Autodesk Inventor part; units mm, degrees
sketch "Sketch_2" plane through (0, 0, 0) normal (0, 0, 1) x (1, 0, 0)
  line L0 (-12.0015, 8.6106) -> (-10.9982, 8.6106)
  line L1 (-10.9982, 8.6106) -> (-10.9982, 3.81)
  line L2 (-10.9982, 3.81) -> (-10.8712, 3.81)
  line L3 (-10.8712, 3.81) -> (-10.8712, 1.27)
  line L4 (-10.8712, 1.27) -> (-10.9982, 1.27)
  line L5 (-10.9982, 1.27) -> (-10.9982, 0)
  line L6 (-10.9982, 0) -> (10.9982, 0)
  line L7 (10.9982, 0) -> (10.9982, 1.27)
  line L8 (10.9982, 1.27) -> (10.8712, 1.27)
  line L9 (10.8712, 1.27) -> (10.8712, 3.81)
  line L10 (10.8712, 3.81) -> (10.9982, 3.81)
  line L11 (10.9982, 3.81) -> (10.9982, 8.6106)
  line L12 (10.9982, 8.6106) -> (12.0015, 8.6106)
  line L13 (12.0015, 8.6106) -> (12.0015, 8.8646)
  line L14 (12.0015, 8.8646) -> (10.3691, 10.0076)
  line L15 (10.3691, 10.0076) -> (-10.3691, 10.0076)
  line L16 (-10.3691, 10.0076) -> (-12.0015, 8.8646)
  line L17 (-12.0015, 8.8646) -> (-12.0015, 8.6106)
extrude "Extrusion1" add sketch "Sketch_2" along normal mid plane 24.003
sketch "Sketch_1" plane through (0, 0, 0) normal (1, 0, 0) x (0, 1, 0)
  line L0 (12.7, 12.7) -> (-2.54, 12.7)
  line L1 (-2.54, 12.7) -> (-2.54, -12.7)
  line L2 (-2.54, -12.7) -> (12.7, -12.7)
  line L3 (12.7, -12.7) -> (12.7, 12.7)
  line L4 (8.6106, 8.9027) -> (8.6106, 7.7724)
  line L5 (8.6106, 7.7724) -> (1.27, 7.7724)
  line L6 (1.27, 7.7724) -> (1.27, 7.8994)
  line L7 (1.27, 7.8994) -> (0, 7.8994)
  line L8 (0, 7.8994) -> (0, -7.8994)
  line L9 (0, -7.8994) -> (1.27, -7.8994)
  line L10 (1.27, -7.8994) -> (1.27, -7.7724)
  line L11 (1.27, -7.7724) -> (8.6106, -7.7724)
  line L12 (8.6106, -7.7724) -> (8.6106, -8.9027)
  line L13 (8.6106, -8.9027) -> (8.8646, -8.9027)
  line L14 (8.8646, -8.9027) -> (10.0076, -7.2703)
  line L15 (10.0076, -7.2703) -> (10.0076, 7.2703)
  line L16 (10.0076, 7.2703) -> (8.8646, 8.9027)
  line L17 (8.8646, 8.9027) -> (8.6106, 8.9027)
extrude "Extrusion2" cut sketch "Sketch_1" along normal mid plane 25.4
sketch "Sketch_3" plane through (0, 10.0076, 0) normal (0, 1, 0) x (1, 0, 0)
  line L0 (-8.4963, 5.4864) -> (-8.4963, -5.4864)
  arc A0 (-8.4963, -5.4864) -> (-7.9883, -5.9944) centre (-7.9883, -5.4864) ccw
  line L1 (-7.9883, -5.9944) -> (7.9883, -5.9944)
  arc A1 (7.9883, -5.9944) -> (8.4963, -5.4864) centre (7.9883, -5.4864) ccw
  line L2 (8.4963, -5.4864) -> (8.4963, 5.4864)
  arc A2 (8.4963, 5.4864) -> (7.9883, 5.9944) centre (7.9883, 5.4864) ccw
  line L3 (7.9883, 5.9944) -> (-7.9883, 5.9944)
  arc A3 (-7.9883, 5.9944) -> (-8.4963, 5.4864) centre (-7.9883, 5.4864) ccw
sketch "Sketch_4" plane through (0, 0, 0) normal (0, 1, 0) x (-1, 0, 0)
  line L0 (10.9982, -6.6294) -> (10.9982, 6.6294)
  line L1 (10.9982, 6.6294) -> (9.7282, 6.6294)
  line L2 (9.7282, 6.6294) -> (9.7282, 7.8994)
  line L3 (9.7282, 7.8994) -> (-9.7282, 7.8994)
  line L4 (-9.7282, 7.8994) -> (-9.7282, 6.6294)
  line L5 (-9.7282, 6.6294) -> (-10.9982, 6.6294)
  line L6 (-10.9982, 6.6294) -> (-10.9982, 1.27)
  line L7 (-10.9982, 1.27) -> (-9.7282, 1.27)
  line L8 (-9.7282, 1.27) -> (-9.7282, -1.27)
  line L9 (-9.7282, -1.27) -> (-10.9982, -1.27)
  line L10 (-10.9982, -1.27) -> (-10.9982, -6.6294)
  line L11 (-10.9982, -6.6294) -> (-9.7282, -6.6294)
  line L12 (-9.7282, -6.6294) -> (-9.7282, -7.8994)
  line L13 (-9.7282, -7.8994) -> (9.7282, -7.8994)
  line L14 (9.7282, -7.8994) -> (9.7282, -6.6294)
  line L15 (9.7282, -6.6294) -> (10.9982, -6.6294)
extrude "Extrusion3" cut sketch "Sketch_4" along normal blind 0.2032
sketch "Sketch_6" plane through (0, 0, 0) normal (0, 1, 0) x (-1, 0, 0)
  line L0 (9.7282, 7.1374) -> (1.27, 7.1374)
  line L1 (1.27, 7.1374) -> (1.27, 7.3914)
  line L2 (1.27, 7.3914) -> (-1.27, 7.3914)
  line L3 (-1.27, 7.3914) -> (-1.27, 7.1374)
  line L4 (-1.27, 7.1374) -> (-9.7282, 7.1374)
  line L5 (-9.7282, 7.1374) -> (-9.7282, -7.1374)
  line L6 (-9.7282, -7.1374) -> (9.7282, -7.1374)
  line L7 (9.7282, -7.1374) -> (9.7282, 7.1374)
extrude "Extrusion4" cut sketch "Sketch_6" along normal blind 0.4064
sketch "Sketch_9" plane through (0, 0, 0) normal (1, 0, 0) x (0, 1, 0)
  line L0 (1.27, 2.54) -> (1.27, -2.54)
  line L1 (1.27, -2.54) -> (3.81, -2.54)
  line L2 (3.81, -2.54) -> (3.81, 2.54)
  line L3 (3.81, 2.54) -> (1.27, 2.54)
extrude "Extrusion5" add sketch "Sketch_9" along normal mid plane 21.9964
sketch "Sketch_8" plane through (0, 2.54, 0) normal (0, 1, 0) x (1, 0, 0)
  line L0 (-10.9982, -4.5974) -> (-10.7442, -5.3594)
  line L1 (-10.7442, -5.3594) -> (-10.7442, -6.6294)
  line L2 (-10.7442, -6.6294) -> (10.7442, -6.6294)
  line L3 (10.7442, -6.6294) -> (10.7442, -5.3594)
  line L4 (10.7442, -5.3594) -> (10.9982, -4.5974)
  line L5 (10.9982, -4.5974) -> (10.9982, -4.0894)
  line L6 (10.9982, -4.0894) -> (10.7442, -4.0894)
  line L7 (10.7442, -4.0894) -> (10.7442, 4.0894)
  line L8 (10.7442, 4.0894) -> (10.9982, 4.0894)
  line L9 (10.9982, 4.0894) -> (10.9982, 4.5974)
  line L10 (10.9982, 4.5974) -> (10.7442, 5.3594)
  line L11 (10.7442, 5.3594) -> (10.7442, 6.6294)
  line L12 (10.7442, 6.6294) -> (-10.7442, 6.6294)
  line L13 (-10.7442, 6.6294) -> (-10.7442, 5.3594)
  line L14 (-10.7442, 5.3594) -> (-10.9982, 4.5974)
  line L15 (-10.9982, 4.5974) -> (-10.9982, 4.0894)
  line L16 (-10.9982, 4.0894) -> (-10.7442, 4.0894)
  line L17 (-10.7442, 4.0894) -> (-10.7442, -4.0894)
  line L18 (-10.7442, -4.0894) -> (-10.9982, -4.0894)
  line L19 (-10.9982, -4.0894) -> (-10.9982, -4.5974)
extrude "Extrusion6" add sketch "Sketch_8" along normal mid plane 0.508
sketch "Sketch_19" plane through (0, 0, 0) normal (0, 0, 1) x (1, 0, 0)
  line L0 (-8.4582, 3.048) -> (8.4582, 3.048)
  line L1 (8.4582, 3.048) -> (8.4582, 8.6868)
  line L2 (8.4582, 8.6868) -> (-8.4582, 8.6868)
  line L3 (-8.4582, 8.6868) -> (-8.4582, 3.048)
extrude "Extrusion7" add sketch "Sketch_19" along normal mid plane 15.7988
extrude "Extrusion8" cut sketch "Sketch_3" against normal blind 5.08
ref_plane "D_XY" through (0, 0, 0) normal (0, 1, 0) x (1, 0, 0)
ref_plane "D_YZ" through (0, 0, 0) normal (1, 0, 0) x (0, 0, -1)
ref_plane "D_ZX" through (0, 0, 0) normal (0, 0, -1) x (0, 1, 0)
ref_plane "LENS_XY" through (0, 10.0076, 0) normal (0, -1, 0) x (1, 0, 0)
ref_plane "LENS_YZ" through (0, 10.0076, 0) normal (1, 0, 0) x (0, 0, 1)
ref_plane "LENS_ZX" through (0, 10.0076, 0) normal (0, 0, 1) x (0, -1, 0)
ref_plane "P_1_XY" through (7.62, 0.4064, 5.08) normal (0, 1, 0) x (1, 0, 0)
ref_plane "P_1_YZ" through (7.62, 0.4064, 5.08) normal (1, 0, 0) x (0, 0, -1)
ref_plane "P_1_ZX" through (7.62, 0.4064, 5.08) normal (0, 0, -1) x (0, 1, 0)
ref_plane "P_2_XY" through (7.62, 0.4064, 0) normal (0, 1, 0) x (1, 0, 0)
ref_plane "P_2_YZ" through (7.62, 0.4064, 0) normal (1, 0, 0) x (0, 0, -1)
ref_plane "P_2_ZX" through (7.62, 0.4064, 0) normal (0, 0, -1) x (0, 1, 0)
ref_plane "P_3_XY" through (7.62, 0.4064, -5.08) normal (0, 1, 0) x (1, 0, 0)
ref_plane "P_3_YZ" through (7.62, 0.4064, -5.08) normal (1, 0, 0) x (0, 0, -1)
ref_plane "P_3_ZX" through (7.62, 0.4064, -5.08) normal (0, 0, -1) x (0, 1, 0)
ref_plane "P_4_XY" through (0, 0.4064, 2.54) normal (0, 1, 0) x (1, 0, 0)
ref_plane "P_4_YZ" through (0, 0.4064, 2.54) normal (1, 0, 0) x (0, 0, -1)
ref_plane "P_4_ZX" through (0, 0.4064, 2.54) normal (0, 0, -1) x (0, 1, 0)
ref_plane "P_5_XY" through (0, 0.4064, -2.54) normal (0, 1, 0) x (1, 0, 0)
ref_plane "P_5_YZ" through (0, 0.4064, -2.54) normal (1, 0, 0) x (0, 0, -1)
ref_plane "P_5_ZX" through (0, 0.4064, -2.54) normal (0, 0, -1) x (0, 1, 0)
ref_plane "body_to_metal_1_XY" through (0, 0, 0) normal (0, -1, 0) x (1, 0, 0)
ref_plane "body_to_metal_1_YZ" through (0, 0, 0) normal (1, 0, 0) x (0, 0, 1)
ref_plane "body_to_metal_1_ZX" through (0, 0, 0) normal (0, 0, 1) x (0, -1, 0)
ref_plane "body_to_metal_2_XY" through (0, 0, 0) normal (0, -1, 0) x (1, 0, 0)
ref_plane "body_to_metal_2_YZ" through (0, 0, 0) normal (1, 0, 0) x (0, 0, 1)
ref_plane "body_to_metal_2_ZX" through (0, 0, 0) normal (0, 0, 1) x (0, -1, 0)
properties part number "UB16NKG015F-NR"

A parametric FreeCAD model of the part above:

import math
import FreeCAD as App
import Part
import Sketcher
Q = App.Units.Quantity

doc = App.newDocument("Part")
params = doc.addObject("Spreadsheet::Sheet", "Params")
for row, (alias, value) in enumerate([
    ("sketch1_height", "0.1 in"),
    ("sketch1_height2", "0.01 in"),
    ("sketch1_height3", "0.05 in"),
    ("sketch1_width", "0.005 in"),
    ("sketch1_width2", "0.866 in"),
    ("pad1_length", "0.945 in"),
    ("sketch2_height", "1 in"),
    ("sketch2_width", "0.6 in"),
    ("sketch2_width2", "0.01 in"),
    ("sketch2_width3", "0.05 in"),
    ("sketch2_width4", "0.289 in"),
    ("pocket1_length", "1 in"),
    ("sketch3_height", "0.1 in"),
    ("sketch3_width", "0.05 in"),
    ("sketch3_width2", "0.766 in"),
    ("sketch3_height2", "0.522 in"),
    ("pocket2_length", "0.008 in"),
    ("sketch4_width", "0.1 in"),
    ("sketch4_height", "0.01 in"),
    ("sketch4_width2", "0.333 in"),
    ("sketch4_height2", "0.562 in"),
    ("pocket3_length", "0.016 in"),
    ("sketch5_width", "0.1 in"),
    ("sketch5_height", "0.2 in"),
    ("pad2_length", "0.866 in"),
    ("sketch6_width", "0.01 in"),
    ("sketch6_height", "0.02 in"),
    ("sketch6_height2", "0.05 in"),
    ("sketch6_width2", "0.846 in"),
    ("sketch6_height3", "0.322 in"),
    ("pad3_length", "0.02 in"),
    ("sketch7_width", "0.666 in"),
    ("sketch7_height", "0.222 in"),
    ("pad4_length", "0.622 in"),
    ("sketch8_radius", "0.02 in"),
    ("sketch8_width", "0.629 in"),
    ("sketch8_height", "0.432 in"),
    ("pocket4_length", "0.2 in"),
], start=1):
    params.set(f"A{row}", alias)
    params.set(f"B{row}", "=" + value)
    params.setAlias(f"B{row}", alias)

body = doc.addObject("PartDesign::Body", "Body")

# Sketch on XY plane
sketch1 = doc.addObject("Sketcher::SketchObject", "Sketch")
body.addObject(sketch1)
sketch1.AttachmentSupport = (doc.XY_Plane, [""])
sketch1.MapMode = "FlatFace"
sketch1.addGeometry([
    Part.LineSegment(App.Vector(-12.0015, 8.8646, 0), App.Vector(-12.0015, 8.6106, 0)),  # 0
    Part.LineSegment(App.Vector(-12.0015, 8.6106, 0), App.Vector(-10.9982, 8.6106, 0)),  # 1
    Part.LineSegment(App.Vector(-10.9982, 8.6106, 0), App.Vector(-10.9982, 3.81, 0)),  # 2
    Part.LineSegment(App.Vector(-10.9982, 3.81, 0), App.Vector(-10.8712, 3.81, 0)),  # 3
    Part.LineSegment(App.Vector(-10.8712, 3.81, 0), App.Vector(-10.8712, 1.27, 0)),  # 4
    Part.LineSegment(App.Vector(-10.8712, 1.27, 0), App.Vector(-10.9982, 1.27, 0)),  # 5
    Part.LineSegment(App.Vector(-10.9982, 1.27, 0), App.Vector(-10.9982, 0, 0)),  # 6
    Part.LineSegment(App.Vector(-10.9982, 0, 0), App.Vector(10.9982, 0, 0)),  # 7
    Part.LineSegment(App.Vector(10.9982, 0, 0), App.Vector(10.9982, 1.27, 0)),  # 8
    Part.LineSegment(App.Vector(10.9982, 1.27, 0), App.Vector(10.8712, 1.27, 0)),  # 9
    Part.LineSegment(App.Vector(10.8712, 1.27, 0), App.Vector(10.8712, 3.81, 0)),  # 10
    Part.LineSegment(App.Vector(10.8712, 3.81, 0), App.Vector(10.9982, 3.81, 0)),  # 11
    Part.LineSegment(App.Vector(10.9982, 3.81, 0), App.Vector(10.9982, 8.6106, 0)),  # 12
    Part.LineSegment(App.Vector(10.9982, 8.6106, 0), App.Vector(12.0015, 8.6106, 0)),  # 13
    Part.LineSegment(App.Vector(12.0015, 8.6106, 0), App.Vector(12.0015, 8.8646, 0)),  # 14
    Part.LineSegment(App.Vector(12.0015, 8.8646, 0), App.Vector(10.3691, 10.0076, 0)),  # 15
    Part.LineSegment(App.Vector(10.3691, 10.0076, 0), App.Vector(-10.3691, 10.0076, 0)),  # 16
    Part.LineSegment(App.Vector(-10.3691, 10.0076, 0), App.Vector(-12.0015, 8.8646, 0)),  # 17
], False)
sketch1.addConstraint([
    Sketcher.Constraint("Coincident", 0, 2, 1, 1),
    Sketcher.Constraint("Coincident", 1, 2, 2, 1),
    Sketcher.Constraint("Coincident", 2, 2, 3, 1),
    Sketcher.Constraint("Coincident", 3, 2, 4, 1),
    Sketcher.Constraint("Coincident", 4, 2, 5, 1),
    Sketcher.Constraint("Coincident", 5, 2, 6, 1),
    Sketcher.Constraint("Coincident", 6, 2, 7, 1),
    Sketcher.Constraint("Coincident", 7, 2, 8, 1),
    Sketcher.Constraint("Coincident", 8, 2, 9, 1),
    Sketcher.Constraint("Coincident", 9, 2, 10, 1),
    Sketcher.Constraint("Coincident", 10, 2, 11, 1),
    Sketcher.Constraint("Coincident", 11, 2, 12, 1),
    Sketcher.Constraint("Coincident", 12, 2, 13, 1),
    Sketcher.Constraint("Coincident", 13, 2, 14, 1),
    Sketcher.Constraint("Coincident", 14, 2, 15, 1),
    Sketcher.Constraint("Coincident", 15, 2, 16, 1),
    Sketcher.Constraint("Coincident", 16, 2, 17, 1),
    Sketcher.Constraint("Coincident", 17, 2, 0, 1),
    Sketcher.Constraint("Vertical", 0),
    Sketcher.Constraint("Horizontal", 1),
    Sketcher.Constraint("Vertical", 2),
    Sketcher.Constraint("Horizontal", 3),
    Sketcher.Constraint("Vertical", 4),
    Sketcher.Constraint("Horizontal", 5),
    Sketcher.Constraint("Vertical", 6),
    Sketcher.Constraint("Horizontal", 7),
    Sketcher.Constraint("Vertical", 8),
    Sketcher.Constraint("Horizontal", 9),
    Sketcher.Constraint("Vertical", 10),
    Sketcher.Constraint("Horizontal", 11),
    Sketcher.Constraint("Vertical", 12),
    Sketcher.Constraint("Horizontal", 13),
    Sketcher.Constraint("Vertical", 14),
    Sketcher.Constraint("Horizontal", 16),
    Sketcher.Constraint("Symmetric", 6, 2, 7, 2, -1, 1),
    Sketcher.Constraint("Symmetric", 4, 2, 9, 2, -2),
    Sketcher.Constraint("Symmetric", 2, 2, 11, 2, -2),
    Sketcher.Constraint("Symmetric", 0, 2, 13, 2, -2),
    Sketcher.Constraint("Horizontal", 14, 2, 17, 2),
    Sketcher.Constraint("Vertical", 2, 2, 5, 2),
    Sketcher.Constraint("Equal", 15, 17),
    Sketcher.Constraint("DistanceY", 4, 2, 4, 1, Q("0.1 in")),
    Sketcher.Constraint("Angle", 15, Q("145.0004 deg")),
    Sketcher.Constraint("DistanceY", 0, 2, 0, 1, Q("0.01 in")),
    Sketcher.Constraint("DistanceY", 6, 2, 6, 1, Q("0.05 in")),
    Sketcher.Constraint("DistanceX", 3, 1, 3, 2, Q("0.005 in")),
    Sketcher.Constraint("DistanceX", 7, 1, 7, 2, Q("0.866 in")),
    Sketcher.Constraint("DistanceY", 2, 2, 2, 1, Q("0.189 in")),
    Sketcher.Constraint("DistanceX", 1, 1, 1, 2, Q("0.0395 in")),
    Sketcher.Constraint("DistanceY", -1, 1, 15, 2, Q("0.394 in")),
])
sketch1.setExpression("Constraints[41]", "Params.sketch1_height")
sketch1.setExpression("Constraints[43]", "Params.sketch1_height2")
sketch1.setExpression("Constraints[44]", "Params.sketch1_height3")
sketch1.setExpression("Constraints[45]", "Params.sketch1_width")
sketch1.setExpression("Constraints[46]", "Params.sketch1_width2")
pad1 = doc.addObject("PartDesign::Pad", "Pad")
body.addObject(pad1)
pad1.Profile = sketch1
pad1.setExpression("Length", "Params.pad1_length")
pad1.Midplane = True

# Sketch on YZ plane
sketch2 = doc.addObject("Sketcher::SketchObject", "Sketch001")
body.addObject(sketch2)
sketch2.AttachmentSupport = (doc.YZ_Plane, [""])
sketch2.MapMode = "FlatFace"
sketch2.addGeometry([
    Part.LineSegment(App.Vector(12.7, -12.7, 0), App.Vector(12.7, 12.7, 0)),  # 0
    Part.LineSegment(App.Vector(12.7, 12.7, 0), App.Vector(-2.54, 12.7, 0)),  # 1
    Part.LineSegment(App.Vector(-2.54, 12.7, 0), App.Vector(-2.54, -12.7, 0)),  # 2
    Part.LineSegment(App.Vector(-2.54, -12.7, 0), App.Vector(12.7, -12.7, 0)),  # 3
    Part.LineSegment(App.Vector(8.6106, 7.7724, 0), App.Vector(8.6106, 8.9027, 0)),  # 4
    Part.LineSegment(App.Vector(8.6106, 8.9027, 0), App.Vector(8.8646, 8.9027, 0)),  # 5
    Part.LineSegment(App.Vector(8.8646, 8.9027, 0), App.Vector(10.0076, 7.2703, 0)),  # 6
    Part.LineSegment(App.Vector(10.0076, 7.2703, 0), App.Vector(10.0076, -7.2703, 0)),  # 7
    Part.LineSegment(App.Vector(10.0076, -7.2703, 0), App.Vector(8.8646, -8.9027, 0)),  # 8
    Part.LineSegment(App.Vector(8.8646, -8.9027, 0), App.Vector(8.6106, -8.9027, 0)),  # 9
    Part.LineSegment(App.Vector(8.6106, -8.9027, 0), App.Vector(8.6106, -7.7724, 0)),  # 10
    Part.LineSegment(App.Vector(8.6106, -7.7724, 0), App.Vector(1.27, -7.7724, 0)),  # 11
    Part.LineSegment(App.Vector(1.27, -7.7724, 0), App.Vector(1.27, -7.8994, 0)),  # 12
    Part.LineSegment(App.Vector(1.27, -7.8994, 0), App.Vector(0, -7.8994, 0)),  # 13
    Part.LineSegment(App.Vector(0, -7.8994, 0), App.Vector(0, 7.8994, 0)),  # 14
    Part.LineSegment(App.Vector(0, 7.8994, 0), App.Vector(1.27, 7.8994, 0)),  # 15
    Part.LineSegment(App.Vector(1.27, 7.8994, 0), App.Vector(1.27, 7.7724, 0)),  # 16
    Part.LineSegment(App.Vector(1.27, 7.7724, 0), App.Vector(8.6106, 7.7724, 0)),  # 17
], False)
sketch2.addConstraint([
    Sketcher.Constraint("Coincident", 0, 2, 1, 1),
    Sketcher.Constraint("Coincident", 1, 2, 2, 1),
    Sketcher.Constraint("Coincident", 2, 2, 3, 1),
    Sketcher.Constraint("Coincident", 3, 2, 0, 1),
    Sketcher.Constraint("Coincident", 4, 2, 5, 1),
    Sketcher.Constraint("Coincident", 5, 2, 6, 1),
    Sketcher.Constraint("Coincident", 6, 2, 7, 1),
    Sketcher.Constraint("Coincident", 7, 2, 8, 1),
    Sketcher.Constraint("Coincident", 8, 2, 9, 1),
    Sketcher.Constraint("Coincident", 9, 2, 10, 1),
    Sketcher.Constraint("Coincident", 10, 2, 11, 1),
    Sketcher.Constraint("Coincident", 11, 2, 12, 1),
    Sketcher.Constraint("Coincident", 12, 2, 13, 1),
    Sketcher.Constraint("Coincident", 13, 2, 14, 1),
    Sketcher.Constraint("Coincident", 14, 2, 15, 1),
    Sketcher.Constraint("Coincident", 15, 2, 16, 1),
    Sketcher.Constraint("Coincident", 16, 2, 17, 1),
    Sketcher.Constraint("Coincident", 17, 2, 4, 1),
    Sketcher.Constraint("Vertical", 0),
    Sketcher.Constraint("Horizontal", 1),
    Sketcher.Constraint("Vertical", 2),
    Sketcher.Constraint("Horizontal", 3),
    Sketcher.Constraint("Vertical", 4),
    Sketcher.Constraint("Horizontal", 5),
    Sketcher.Constraint("Vertical", 7),
    Sketcher.Constraint("Horizontal", 9),
    Sketcher.Constraint("Vertical", 10),
    Sketcher.Constraint("Horizontal", 11),
    Sketcher.Constraint("Vertical", 12),
    Sketcher.Constraint("Horizontal", 13),
    Sketcher.Constraint("Vertical", 14),
    Sketcher.Constraint("Horizontal", 15),
    Sketcher.Constraint("Vertical", 16),
    Sketcher.Constraint("Horizontal", 17),
    Sketcher.Constraint("Symmetric", 13, 2, 14, 2, -1, 1),
    Sketcher.Constraint("Symmetric", 5, 2, 8, 2, -1),
    Sketcher.Constraint("Symmetric", 11, 2, 16, 2, -1),
    Sketcher.Constraint("Vertical", 4, 2, 9, 2),
    Sketcher.Constraint("Equal", 6, 8),
    Sketcher.Constraint("DistanceY", 0, 1, 0, 2, Q("1 in")),
    Sketcher.Constraint("DistanceX", 1, 2, 1, 1, Q("0.6 in")),
    Sketcher.Constraint("Angle", 6, Q("-55.0004 deg")),
    Sketcher.Constraint("DistanceX", 5, 1, 5, 2, Q("0.01 in")),
    Sketcher.Constraint("DistanceX", 13, 2, 13, 1, Q("0.05 in")),
    Sketcher.Constraint("DistanceX", -1, 1, 0, 2, Q("0.5 in")),
    Sketcher.Constraint("DistanceY", -1, 1, 0, 2, Q("0.5 in")),
    Sketcher.Constraint("DistanceX", 11, 2, 11, 1, Q("0.289 in")),
    Sketcher.Constraint("DistanceY", 12, 2, 12, 1, Q("0.005 in")),
    Sketcher.Constraint("DistanceY", 14, 1, 14, 2, Q("0.622 in")),
    Sketcher.Constraint("DistanceY", 4, 1, 4, 2, Q("0.0445 in")),
    Sketcher.Constraint("DistanceX", -1, 1, 6, 2, Q("0.394 in")),
])
sketch2.setExpression("Constraints[39]", "Params.sketch2_height")
sketch2.setExpression("Constraints[40]", "Params.sketch2_width")
sketch2.setExpression("Constraints[42]", "Params.sketch2_width2")
sketch2.setExpression("Constraints[43]", "Params.sketch2_width3")
sketch2.setExpression("Constraints[46]", "Params.sketch2_width4")
pocket1 = doc.addObject("PartDesign::Pocket", "Pocket")
body.addObject(pocket1)
pocket1.Profile = sketch2
pocket1.setExpression("Length", "Params.pocket1_length")
pocket1.Midplane = True

# Sketch on XZ plane
sketch3 = doc.addObject("Sketcher::SketchObject", "Sketch002")
body.addObject(sketch3)
sketch3.AttachmentSupport = (doc.XZ_Plane, [""])
sketch3.MapMode = "FlatFace"
sketch3.addGeometry([
    Part.LineSegment(App.Vector(-9.7282, -6.6294, 0), App.Vector(-10.9982, -6.6294, 0)),  # 0
    Part.LineSegment(App.Vector(-10.9982, -6.6294, 0), App.Vector(-10.9982, 6.6294, 0)),  # 1
    Part.LineSegment(App.Vector(-10.9982, 6.6294, 0), App.Vector(-9.7282, 6.6294, 0)),  # 2
    Part.LineSegment(App.Vector(-9.7282, 6.6294, 0), App.Vector(-9.7282, 7.8994, 0)),  # 3
    Part.LineSegment(App.Vector(-9.7282, 7.8994, 0), App.Vector(9.7282, 7.8994, 0)),  # 4
    Part.LineSegment(App.Vector(9.7282, 7.8994, 0), App.Vector(9.7282, 6.6294, 0)),  # 5
    Part.LineSegment(App.Vector(9.7282, 6.6294, 0), App.Vector(10.9982, 6.6294, 0)),  # 6
    Part.LineSegment(App.Vector(10.9982, 6.6294, 0), App.Vector(10.9982, 1.27, 0)),  # 7
    Part.LineSegment(App.Vector(10.9982, 1.27, 0), App.Vector(9.7282, 1.27, 0)),  # 8
    Part.LineSegment(App.Vector(9.7282, 1.27, 0), App.Vector(9.7282, -1.27, 0)),  # 9
    Part.LineSegment(App.Vector(9.7282, -1.27, 0), App.Vector(10.9982, -1.27, 0)),  # 10
    Part.LineSegment(App.Vector(10.9982, -1.27, 0), App.Vector(10.9982, -6.6294, 0)),  # 11
    Part.LineSegment(App.Vector(10.9982, -6.6294, 0), App.Vector(9.7282, -6.6294, 0)),  # 12
    Part.LineSegment(App.Vector(9.7282, -6.6294, 0), App.Vector(9.7282, -7.8994, 0)),  # 13
    Part.LineSegment(App.Vector(9.7282, -7.8994, 0), App.Vector(-9.7282, -7.8994, 0)),  # 14
    Part.LineSegment(App.Vector(-9.7282, -7.8994, 0), App.Vector(-9.7282, -6.6294, 0)),  # 15
], False)
sketch3.addConstraint([
    Sketcher.Constraint("Coincident", 0, 2, 1, 1),
    Sketcher.Constraint("Coincident", 1, 2, 2, 1),
    Sketcher.Constraint("Coincident", 2, 2, 3, 1),
    Sketcher.Constraint("Coincident", 3, 2, 4, 1),
    Sketcher.Constraint("Coincident", 4, 2, 5, 1),
    Sketcher.Constraint("Coincident", 5, 2, 6, 1),
    Sketcher.Constraint("Coincident", 6, 2, 7, 1),
    Sketcher.Constraint("Coincident", 7, 2, 8, 1),
    Sketcher.Constraint("Coincident", 8, 2, 9, 1),
    Sketcher.Constraint("Coincident", 9, 2, 10, 1),
    Sketcher.Constraint("Coincident", 10, 2, 11, 1),
    Sketcher.Constraint("Coincident", 11, 2, 12, 1),
    Sketcher.Constraint("Coincident", 12, 2, 13, 1),
    Sketcher.Constraint("Coincident", 13, 2, 14, 1),
    Sketcher.Constraint("Coincident", 14, 2, 15, 1),
    Sketcher.Constraint("Coincident", 15, 2, 0, 1),
    Sketcher.Constraint("Horizontal", 0),
    Sketcher.Constraint("Vertical", 1),
    Sketcher.Constraint("Horizontal", 2),
    Sketcher.Constraint("Vertical", 3),
    Sketcher.Constraint("Horizontal", 4),
    Sketcher.Constraint("Vertical", 5),
    Sketcher.Constraint("Horizontal", 6),
    Sketcher.Constraint("Vertical", 7),
    Sketcher.Constraint("Horizontal", 8),
    Sketcher.Constraint("Vertical", 9),
    Sketcher.Constraint("Horizontal", 10),
    Sketcher.Constraint("Vertical", 11),
    Sketcher.Constraint("Horizontal", 12),
    Sketcher.Constraint("Vertical", 13),
    Sketcher.Constraint("Horizontal", 14),
    Sketcher.Constraint("Vertical", 15),
    Sketcher.Constraint("Symmetric", 0, 2, 6, 2, -1, 1),
    Sketcher.Constraint("Symmetric", 1, 2, 11, 2, -1, 1),
    Sketcher.Constraint("Symmetric", 3, 2, 13, 2, -1, 1),
    Sketcher.Constraint("Symmetric", 2, 2, 5, 2, -2),
    Sketcher.Constraint("Vertical", 5, 2, 8, 2),
    Sketcher.Constraint("Vertical", 3, 2, 14, 2),
    Sketcher.Constraint("Equal", 12, 3),
    Sketcher.Constraint("Equal", 7, 11),
    Sketcher.Constraint("DistanceY", 9, 2, 9, 1, Q("0.1 in")),
    Sketcher.Constraint("DistanceX", 0, 2, 0, 1, Q("0.05 in")),
    Sketcher.Constraint("DistanceX", 4, 1, 4, 2, Q("0.766 in")),
    Sketcher.Constraint("DistanceY", 1, 1, 1, 2, Q("0.522 in")),
])
sketch3.setExpression("Constraints[40]", "Params.sketch3_height")
sketch3.setExpression("Constraints[41]", "Params.sketch3_width")
sketch3.setExpression("Constraints[42]", "Params.sketch3_width2")
sketch3.setExpression("Constraints[43]", "Params.sketch3_height2")
pocket2 = doc.addObject("PartDesign::Pocket", "Pocket001")
body.addObject(pocket2)
pocket2.Profile = sketch3
pocket2.setExpression("Length", "Params.pocket2_length")

# Sketch on XZ plane
sketch4 = doc.addObject("Sketcher::SketchObject", "Sketch003")
body.addObject(sketch4)
sketch4.AttachmentSupport = (doc.XZ_Plane, [""])
sketch4.MapMode = "FlatFace"
sketch4.addGeometry([
    Part.LineSegment(App.Vector(-9.7282, -7.1374, 0), App.Vector(-9.7282, 7.1374, 0)),  # 0
    Part.LineSegment(App.Vector(-9.7282, 7.1374, 0), App.Vector(-1.27, 7.1374, 0)),  # 1
    Part.LineSegment(App.Vector(-1.27, 7.1374, 0), App.Vector(-1.27, 7.3914, 0)),  # 2
    Part.LineSegment(App.Vector(-1.27, 7.3914, 0), App.Vector(1.27, 7.3914, 0)),  # 3
    Part.LineSegment(App.Vector(1.27, 7.3914, 0), App.Vector(1.27, 7.1374, 0)),  # 4
    Part.LineSegment(App.Vector(1.27, 7.1374, 0), App.Vector(9.7282, 7.1374, 0)),  # 5
    Part.LineSegment(App.Vector(9.7282, 7.1374, 0), App.Vector(9.7282, -7.1374, 0)),  # 6
    Part.LineSegment(App.Vector(9.7282, -7.1374, 0), App.Vector(-9.7282, -7.1374, 0)),  # 7
], False)
sketch4.addConstraint([
    Sketcher.Constraint("Coincident", 0, 2, 1, 1),
    Sketcher.Constraint("Coincident", 1, 2, 2, 1),
    Sketcher.Constraint("Coincident", 2, 2, 3, 1),
    Sketcher.Constraint("Coincident", 3, 2, 4, 1),
    Sketcher.Constraint("Coincident", 4, 2, 5, 1),
    Sketcher.Constraint("Coincident", 5, 2, 6, 1),
    Sketcher.Constraint("Coincident", 6, 2, 7, 1),
    Sketcher.Constraint("Coincident", 7, 2, 0, 1),
    Sketcher.Constraint("Vertical", 0),
    Sketcher.Constraint("Horizontal", 1),
    Sketcher.Constraint("Vertical", 2),
    Sketcher.Constraint("Horizontal", 3),
    Sketcher.Constraint("Vertical", 4),
    Sketcher.Constraint("Horizontal", 5),
    Sketcher.Constraint("Vertical", 6),
    Sketcher.Constraint("Horizontal", 7),
    Sketcher.Constraint("Symmetric", 0, 2, 6, 2, -1, 1),
    Sketcher.Constraint("Symmetric", 1, 2, 4, 2, -2),
    Sketcher.Constraint("DistanceX", 3, 1, 3, 2, Q("0.1 in")),
    Sketcher.Constraint("DistanceY", 2, 1, 2, 2, Q("0.01 in")),
    Sketcher.Constraint("DistanceX", 1, 1, 1, 2, Q("0.333 in")),
    Sketcher.Constraint("DistanceY", 0, 1, 0, 2, Q("0.562 in")),
])
sketch4.setExpression("Constraints[18]", "Params.sketch4_width")
sketch4.setExpression("Constraints[19]", "Params.sketch4_height")
sketch4.setExpression("Constraints[20]", "Params.sketch4_width2")
sketch4.setExpression("Constraints[21]", "Params.sketch4_height2")
pocket3 = doc.addObject("PartDesign::Pocket", "Pocket002")
body.addObject(pocket3)
pocket3.Profile = sketch4
pocket3.setExpression("Length", "Params.pocket3_length")

# Sketch on YZ plane
sketch5 = doc.addObject("Sketcher::SketchObject", "Sketch004")
body.addObject(sketch5)
sketch5.AttachmentSupport = (doc.YZ_Plane, [""])
sketch5.MapMode = "FlatFace"
sketch5.addGeometry([
    Part.LineSegment(App.Vector(3.81, 2.54, 0), App.Vector(1.27, 2.54, 0)),
    Part.LineSegment(App.Vector(1.27, 2.54, 0), App.Vector(1.27, -2.54, 0)),
    Part.LineSegment(App.Vector(1.27, -2.54, 0), App.Vector(3.81, -2.54, 0)),
    Part.LineSegment(App.Vector(3.81, -2.54, 0), App.Vector(3.81, 2.54, 0)),
], False)
sketch5.addConstraint([
    Sketcher.Constraint("Coincident", 0, 2, 1, 1),
    Sketcher.Constraint("Coincident", 1, 2, 2, 1),
    Sketcher.Constraint("Coincident", 2, 2, 3, 1),
    Sketcher.Constraint("Coincident", 3, 2, 0, 1),
    Sketcher.Constraint("Horizontal", 0),
    Sketcher.Constraint("Vertical", 1),
    Sketcher.Constraint("Horizontal", 2),
    Sketcher.Constraint("Vertical", 3),
    Sketcher.Constraint("DistanceX", 0, 2, 0, 1, Q("0.1 in")),
    Sketcher.Constraint("DistanceY", 1, 2, 1, 1, Q("0.2 in")),
    Sketcher.Constraint("DistanceY", -1, 1, 0, 2, Q("0.1 in")),
    Sketcher.Constraint("DistanceX", -1, 1, 0, 2, Q("0.05 in")),
])
sketch5.setExpression("Constraints[8]", "Params.sketch5_width")
sketch5.setExpression("Constraints[9]", "Params.sketch5_height")
pad2 = doc.addObject("PartDesign::Pad", "Pad001")
body.addObject(pad2)
pad2.Profile = sketch5
pad2.setExpression("Length", "Params.pad2_length")
pad2.Midplane = True

# Sketch on XZ plane
sketch6 = doc.addObject("Sketcher::SketchObject", "Sketch005")
body.addObject(sketch6)
sketch6.AttachmentSupport = (doc.XZ_Plane, [""])
sketch6.MapMode = "FlatFace"
sketch6.AttachmentOffset = App.Placement(App.Vector(0, 0, -0.1 * 25.4), App.Rotation())
sketch6.addGeometry([
    Part.LineSegment(App.Vector(-10.9982, 4.0894, 0), App.Vector(-10.9982, 4.5974, 0)),  # 0
    Part.LineSegment(App.Vector(-10.9982, 4.5974, 0), App.Vector(-10.7442, 5.3594, 0)),  # 1
    Part.LineSegment(App.Vector(-10.7442, 5.3594, 0), App.Vector(-10.7442, 6.6294, 0)),  # 2
    Part.LineSegment(App.Vector(-10.7442, 6.6294, 0), App.Vector(10.7442, 6.6294, 0)),  # 3
    Part.LineSegment(App.Vector(10.7442, 6.6294, 0), App.Vector(10.7442, 5.3594, 0)),  # 4
    Part.LineSegment(App.Vector(10.7442, 5.3594, 0), App.Vector(10.9982, 4.5974, 0)),  # 5
    Part.LineSegment(App.Vector(10.9982, 4.5974, 0), App.Vector(10.9982, 4.0894, 0)),  # 6
    Part.LineSegment(App.Vector(10.9982, 4.0894, 0), App.Vector(10.7442, 4.0894, 0)),  # 7
    Part.LineSegment(App.Vector(10.7442, 4.0894, 0), App.Vector(10.7442, -4.0894, 0)),  # 8
    Part.LineSegment(App.Vector(10.7442, -4.0894, 0), App.Vector(10.9982, -4.0894, 0)),  # 9
    Part.LineSegment(App.Vector(10.9982, -4.0894, 0), App.Vector(10.9982, -4.5974, 0)),  # 10
    Part.LineSegment(App.Vector(10.9982, -4.5974, 0), App.Vector(10.7442, -5.3594, 0)),  # 11
    Part.LineSegment(App.Vector(10.7442, -5.3594, 0), App.Vector(10.7442, -6.6294, 0)),  # 12
    Part.LineSegment(App.Vector(10.7442, -6.6294, 0), App.Vector(-10.7442, -6.6294, 0)),  # 13
    Part.LineSegment(App.Vector(-10.7442, -6.6294, 0), App.Vector(-10.7442, -5.3594, 0)),  # 14
    Part.LineSegment(App.Vector(-10.7442, -5.3594, 0), App.Vector(-10.9982, -4.5974, 0)),  # 15
    Part.LineSegment(App.Vector(-10.9982, -4.5974, 0), App.Vector(-10.9982, -4.0894, 0)),  # 16
    Part.LineSegment(App.Vector(-10.9982, -4.0894, 0), App.Vector(-10.7442, -4.0894, 0)),  # 17
    Part.LineSegment(App.Vector(-10.7442, -4.0894, 0), App.Vector(-10.7442, 4.0894, 0)),  # 18
    Part.LineSegment(App.Vector(-10.7442, 4.0894, 0), App.Vector(-10.9982, 4.0894, 0)),  # 19
], False)
sketch6.addConstraint([
    Sketcher.Constraint("Coincident", 0, 2, 1, 1),
    Sketcher.Constraint("Coincident", 1, 2, 2, 1),
    Sketcher.Constraint("Coincident", 2, 2, 3, 1),
    Sketcher.Constraint("Coincident", 3, 2, 4, 1),
    Sketcher.Constraint("Coincident", 4, 2, 5, 1),
    Sketcher.Constraint("Coincident", 5, 2, 6, 1),
    Sketcher.Constraint("Coincident", 6, 2, 7, 1),
    Sketcher.Constraint("Coincident", 7, 2, 8, 1),
    Sketcher.Constraint("Coincident", 8, 2, 9, 1),
    Sketcher.Constraint("Coincident", 9, 2, 10, 1),
    Sketcher.Constraint("Coincident", 10, 2, 11, 1),
    Sketcher.Constraint("Coincident", 11, 2, 12, 1),
    Sketcher.Constraint("Coincident", 12, 2, 13, 1),
    Sketcher.Constraint("Coincident", 13, 2, 14, 1),
    Sketcher.Constraint("Coincident", 14, 2, 15, 1),
    Sketcher.Constraint("Coincident", 15, 2, 16, 1),
    Sketcher.Constraint("Coincident", 16, 2, 17, 1),
    Sketcher.Constraint("Coincident", 17, 2, 18, 1),
    Sketcher.Constraint("Coincident", 18, 2, 19, 1),
    Sketcher.Constraint("Coincident", 19, 2, 0, 1),
    Sketcher.Constraint("Vertical", 0),
    Sketcher.Constraint("Vertical", 2),
    Sketcher.Constraint("Horizontal", 3),
    Sketcher.Constraint("Vertical", 4),
    Sketcher.Constraint("Vertical", 6),
    Sketcher.Constraint("Horizontal", 7),
    Sketcher.Constraint("Vertical", 8),
    Sketcher.Constraint("Horizontal", 9),
    Sketcher.Constraint("Vertical", 10),
    Sketcher.Constraint("Vertical", 12),
    Sketcher.Constraint("Horizontal", 13),
    Sketcher.Constraint("Vertical", 14),
    Sketcher.Constraint("Vertical", 16),
    Sketcher.Constraint("Horizontal", 17),
    Sketcher.Constraint("Vertical", 18),
    Sketcher.Constraint("Horizontal", 19),
    Sketcher.Constraint("Symmetric", 0, 2, 10, 2, -1, 1),
    Sketcher.Constraint("Symmetric", 1, 2, 11, 2, -1, 1),
    Sketcher.Constraint("Symmetric", 3, 2, 13, 2, -1, 1),
    Sketcher.Constraint("Symmetric", 5, 2, 15, 2, -1, 1),
    Sketcher.Constraint("Symmetric", 7, 2, 17, 2, -1, 1),
    Sketcher.Constraint("Symmetric", 1, 2, 4, 2, -2),
    Sketcher.Constraint("Symmetric", 0, 2, 5, 2, -2),
    Sketcher.Constraint("Parallel", 5, 15),
    Sketcher.Constraint("Horizontal", 9, 2, 16, 2),
    Sketcher.Constraint("Horizontal", 7, 2, 18, 2),
    Sketcher.Constraint("Vertical", 4, 2, 7, 2),
    Sketcher.Constraint("DistanceX", 7, 2, 7, 1, Q("0.01 in")),
    Sketcher.Constraint("DistanceY", 0, 1, 0, 2, Q("0.02 in")),
    Sketcher.Constraint("DistanceY", 2, 1, 2, 2, Q("0.05 in")),
    Sketcher.Constraint("DistanceY", 6, 2, 3, 2, Q("0.1 in")),
    Sketcher.Constraint("DistanceX", 3, 1, 3, 2, Q("0.846 in")),
    Sketcher.Constraint("DistanceY", 8, 2, 8, 1, Q("0.322 in")),
])
sketch6.setExpression("Constraints[47]", "Params.sketch6_width")
sketch6.setExpression("Constraints[48]", "Params.sketch6_height")
sketch6.setExpression("Constraints[49]", "Params.sketch6_height2")
sketch6.setExpression("Constraints[51]", "Params.sketch6_width2")
sketch6.setExpression("Constraints[52]", "Params.sketch6_height3")
pad3 = doc.addObject("PartDesign::Pad", "Pad002")
body.addObject(pad3)
pad3.Profile = sketch6
pad3.setExpression("Length", "Params.pad3_length")
pad3.Midplane = True

# Sketch on XY plane
sketch7 = doc.addObject("Sketcher::SketchObject", "Sketch006")
body.addObject(sketch7)
sketch7.AttachmentSupport = (doc.XY_Plane, [""])
sketch7.MapMode = "FlatFace"
sketch7.addGeometry([
    Part.LineSegment(App.Vector(-8.4582, 8.6868, 0), App.Vector(-8.4582, 3.048, 0)),
    Part.LineSegment(App.Vector(-8.4582, 3.048, 0), App.Vector(8.4582, 3.048, 0)),
    Part.LineSegment(App.Vector(8.4582, 3.048, 0), App.Vector(8.4582, 8.6868, 0)),
    Part.LineSegment(App.Vector(8.4582, 8.6868, 0), App.Vector(-8.4582, 8.6868, 0)),
], False)
sketch7.addConstraint([
    Sketcher.Constraint("Coincident", 0, 2, 1, 1),
    Sketcher.Constraint("Coincident", 1, 2, 2, 1),
    Sketcher.Constraint("Coincident", 2, 2, 3, 1),
    Sketcher.Constraint("Coincident", 3, 2, 0, 1),
    Sketcher.Constraint("Vertical", 0),
    Sketcher.Constraint("Horizontal", 1),
    Sketcher.Constraint("Vertical", 2),
    Sketcher.Constraint("Horizontal", 3),
    Sketcher.Constraint("DistanceX", 1, 1, 1, 2, Q("0.666 in")),
    Sketcher.Constraint("DistanceY", 0, 2, 0, 1, Q("0.222 in")),
    Sketcher.Constraint("DistanceY", -1, 1, 0, 2, Q("0.12 in")),
    Sketcher.Constraint("DistanceX", 0, 2, -1, 1, Q("0.333 in")),
])
sketch7.setExpression("Constraints[8]", "Params.sketch7_width")
sketch7.setExpression("Constraints[9]", "Params.sketch7_height")
pad4 = doc.addObject("PartDesign::Pad", "Pad003")
body.addObject(pad4)
pad4.Profile = sketch7
pad4.setExpression("Length", "Params.pad4_length")
pad4.Midplane = True

# Sketch on XZ plane
sketch8 = doc.addObject("Sketcher::SketchObject", "Sketch007")
body.addObject(sketch8)
sketch8.AttachmentSupport = (doc.XZ_Plane, [""])
sketch8.MapMode = "FlatFace"
sketch8.AttachmentOffset = App.Placement(App.Vector(0, 0, -0.394 * 25.4), App.Rotation())
sketch8.addGeometry([
    Part.ArcOfCircle(Part.Circle(App.Vector(-7.9883, -5.4864, 0), App.Vector(0, 0, 1), 0.508), math.radians(180), math.radians(270)),  # 0
    Part.LineSegment(App.Vector(-8.4963, -5.4864, 0), App.Vector(-8.4963, 5.4864, 0)),  # 1
    Part.ArcOfCircle(Part.Circle(App.Vector(-7.9883, 5.4864, 0), App.Vector(0, 0, 1), 0.508), math.radians(90), math.radians(180)),  # 2
    Part.LineSegment(App.Vector(-7.9883, 5.9944, 0), App.Vector(7.9883, 5.9944, 0)),  # 3
    Part.ArcOfCircle(Part.Circle(App.Vector(7.9883, 5.4864, 0), App.Vector(0, 0, 1), 0.508), math.radians(0), math.radians(90)),  # 4
    Part.LineSegment(App.Vector(8.4963, 5.4864, 0), App.Vector(8.4963, -5.4864, 0)),  # 5
    Part.ArcOfCircle(Part.Circle(App.Vector(7.9883, -5.4864, 0), App.Vector(0, 0, 1), 0.508), math.radians(-90), math.radians(0)),  # 6
    Part.LineSegment(App.Vector(7.9883, -5.9944, 0), App.Vector(-7.9883, -5.9944, 0)),  # 7
], False)
sketch8.addConstraint([
    Sketcher.Constraint("Tangent", 0, 1, 1, 1),
    Sketcher.Constraint("Tangent", 1, 2, 2, 2),
    Sketcher.Constraint("Tangent", 2, 1, 3, 1),
    Sketcher.Constraint("Tangent", 3, 2, 4, 2),
    Sketcher.Constraint("Tangent", 4, 1, 5, 1),
    Sketcher.Constraint("Tangent", 5, 2, 6, 2),
    Sketcher.Constraint("Tangent", 6, 1, 7, 1),
    Sketcher.Constraint("Tangent", 7, 2, 0, 2),
    Sketcher.Constraint("Vertical", 1),
    Sketcher.Constraint("Horizontal", 3),
    Sketcher.Constraint("Vertical", 5),
    Sketcher.Constraint("Horizontal", 7),
    Sketcher.Constraint("Equal", 0, 2),
    Sketcher.Constraint("Equal", 2, 4),
    Sketcher.Constraint("Equal", 4, 6),
    Sketcher.Constraint("Symmetric", 0, 3, 4, 3, -1, 1),
    Sketcher.Constraint("Radius", 0, Q("0.02 in")),
    Sketcher.Constraint("DistanceX", 3, 1, 3, 2, Q("0.629 in")),
    Sketcher.Constraint("DistanceY", 1, 1, 1, 2, Q("0.432 in")),
])
sketch8.setExpression("Constraints[16]", "Params.sketch8_radius")
sketch8.setExpression("Constraints[17]", "Params.sketch8_width")
sketch8.setExpression("Constraints[18]", "Params.sketch8_height")
pocket4 = doc.addObject("PartDesign::Pocket", "Pocket003")
body.addObject(pocket4)
pocket4.Profile = sketch8
pocket4.setExpression("Length", "Params.pocket4_length")
pocket4.Reversed = True

doc.recompute()
